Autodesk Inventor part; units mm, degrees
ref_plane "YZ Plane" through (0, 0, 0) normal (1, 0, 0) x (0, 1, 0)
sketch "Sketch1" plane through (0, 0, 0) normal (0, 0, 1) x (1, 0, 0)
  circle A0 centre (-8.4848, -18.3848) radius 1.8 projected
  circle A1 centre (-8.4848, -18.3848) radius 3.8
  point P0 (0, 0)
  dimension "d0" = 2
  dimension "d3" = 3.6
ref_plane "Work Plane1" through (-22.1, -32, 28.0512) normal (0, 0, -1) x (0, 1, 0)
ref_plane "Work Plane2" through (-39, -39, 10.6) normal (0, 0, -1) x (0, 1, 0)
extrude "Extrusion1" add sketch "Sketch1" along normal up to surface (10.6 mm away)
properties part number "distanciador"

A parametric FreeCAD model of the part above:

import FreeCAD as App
import Part
import Sketcher

doc = App.newDocument("Part")
body = doc.addObject("PartDesign::Body", "Body")

# Sketch on XY plane
sketch1 = body.newObject("Sketcher::SketchObject", "Sketch")
sketch1.AttachmentSupport = (doc.getObject("XY_Plane"), [""])
sketch1.MapMode = "FlatFace"
sketch1.addGeometry(Part.Circle(App.Vector(-8.4848, -18.3848, 0), App.Vector(0, 0, 1), 3.8), False)
sketch1.addGeometry(Part.Circle(App.Vector(-8.4848, -18.3848, 0), App.Vector(0, 0, 1), 1.8), False)
sketch1.addConstraint(Sketcher.Constraint("Coincident", 1, 3, 0, 3))
sketch1.addConstraint(Sketcher.Constraint("Diameter", 1, 3.6))
sketch1.addConstraint(Sketcher.Constraint("Diameter", 0, 7.6))
sketch1.addConstraint(Sketcher.Constraint("DistanceX", 0, 3, -1, 1, 8.4848))
sketch1.addConstraint(Sketcher.Constraint("DistanceY", 0, 3, -1, 1, 18.3848))
pad1 = body.newObject("PartDesign::Pad", "Pad")
pad1.Profile = sketch1
pad1.Length = 10.6

doc.recompute()
